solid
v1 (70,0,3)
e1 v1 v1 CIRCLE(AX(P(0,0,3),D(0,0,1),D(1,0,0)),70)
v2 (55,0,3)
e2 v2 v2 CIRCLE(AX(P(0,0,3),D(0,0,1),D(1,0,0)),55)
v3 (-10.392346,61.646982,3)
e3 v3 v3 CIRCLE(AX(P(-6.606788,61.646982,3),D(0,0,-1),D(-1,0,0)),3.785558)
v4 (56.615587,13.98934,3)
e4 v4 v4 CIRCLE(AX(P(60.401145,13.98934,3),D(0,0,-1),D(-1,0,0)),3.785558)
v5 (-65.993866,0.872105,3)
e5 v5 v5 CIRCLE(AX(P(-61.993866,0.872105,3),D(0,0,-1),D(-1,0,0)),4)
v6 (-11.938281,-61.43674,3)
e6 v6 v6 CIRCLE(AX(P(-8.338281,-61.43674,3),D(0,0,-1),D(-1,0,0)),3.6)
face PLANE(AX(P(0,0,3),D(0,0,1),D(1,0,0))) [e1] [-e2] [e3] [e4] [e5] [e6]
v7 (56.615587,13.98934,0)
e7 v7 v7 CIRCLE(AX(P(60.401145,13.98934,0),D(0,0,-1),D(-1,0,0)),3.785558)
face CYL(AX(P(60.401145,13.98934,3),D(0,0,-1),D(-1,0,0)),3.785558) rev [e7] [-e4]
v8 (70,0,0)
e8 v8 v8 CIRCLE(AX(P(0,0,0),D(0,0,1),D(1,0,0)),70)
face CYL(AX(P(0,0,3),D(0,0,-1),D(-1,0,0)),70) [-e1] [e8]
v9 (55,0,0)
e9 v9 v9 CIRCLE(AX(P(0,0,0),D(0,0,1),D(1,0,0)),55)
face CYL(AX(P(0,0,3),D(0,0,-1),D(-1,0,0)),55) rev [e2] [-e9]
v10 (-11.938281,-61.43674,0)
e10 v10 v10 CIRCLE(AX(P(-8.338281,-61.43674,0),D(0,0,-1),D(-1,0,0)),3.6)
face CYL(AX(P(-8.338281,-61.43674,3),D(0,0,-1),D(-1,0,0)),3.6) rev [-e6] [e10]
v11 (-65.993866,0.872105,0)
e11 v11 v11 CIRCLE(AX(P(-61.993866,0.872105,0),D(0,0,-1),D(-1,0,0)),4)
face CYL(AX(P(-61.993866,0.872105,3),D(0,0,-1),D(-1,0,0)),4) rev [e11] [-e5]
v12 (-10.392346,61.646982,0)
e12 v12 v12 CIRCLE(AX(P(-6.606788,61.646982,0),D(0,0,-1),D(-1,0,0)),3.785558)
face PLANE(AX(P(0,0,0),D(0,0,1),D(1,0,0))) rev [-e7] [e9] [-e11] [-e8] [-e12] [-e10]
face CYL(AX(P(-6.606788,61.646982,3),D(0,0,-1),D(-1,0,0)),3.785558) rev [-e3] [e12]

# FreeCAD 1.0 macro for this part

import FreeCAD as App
import Part
import Sketcher
from FreeCAD import Vector

doc = App.newDocument("Part")
body = doc.addObject("PartDesign::Body", "Body")

# Sketch on XY plane
sketch1 = body.newObject("Sketcher::SketchObject", "Sketch")
sketch1.AttachmentSupport = (doc.getObject("XY_Plane"), [""])
sketch1.MapMode = "FlatFace"
sketch1.addGeometry([
    Part.Circle(Vector(0, 0, 0), Vector(0, 0, 1), 70),
    Part.Circle(Vector(0, 0, 0), Vector(0, 0, 1), 55),
], False)
sketch1.addConstraint([
    Sketcher.Constraint("Coincident", 0, 3, -1, 1),
    Sketcher.Constraint("Coincident", 1, 3, -1, 1),
    Sketcher.Constraint("Diameter", 0, 140.0),
    Sketcher.Constraint("Diameter", 1, 110.0),
])
pad1 = body.newObject("PartDesign::Pad", "Pad")
pad1.Profile = sketch1
pad1.Length = 3

# Sketch on XY plane
sketch2 = body.newObject("Sketcher::SketchObject", "Sketch001")
sketch2.AttachmentSupport = (doc.getObject("XY_Plane"), [""])
sketch2.MapMode = "FlatFace"
sketch2.addGeometry([
    Part.Circle(Vector(-62, 0.9, 0), Vector(0, 0, 1), 4),
    Part.Circle(Vector(-6.6, 61.6, 0), Vector(0, 0, 1), 3.8),
    Part.Circle(Vector(60.4, 14, 0), Vector(0, 0, 1), 3.8),
    Part.Circle(Vector(-8.3, -61.4, 0), Vector(0, 0, 1), 3.6),
], False)
sketch2.addConstraint([
    Sketcher.Constraint("Equal", 1, 2),
    Sketcher.Constraint("Diameter", 0, 8.0),
    Sketcher.Constraint("Diameter", 3, 7.2),
    Sketcher.Constraint("Diameter", 1, 7.571116),
    Sketcher.Constraint("DistanceX", 1, 3, -1, 1, 6.606788),
    Sketcher.Constraint("DistanceY", -1, 1, 1, 3, 61.646982),
    Sketcher.Constraint("DistanceY", -1, 1, 2, 3, 13.98934),
    Sketcher.Constraint("DistanceX", 3, 3, -1, 1, 8.338281),
    Sketcher.Constraint("DistanceY", 3, 3, -1, 1, 61.43674),
    Sketcher.Constraint("DistanceX", 0, 3, 2, 3, 122.395012),
    Sketcher.Constraint("DistanceX", 0, 3, -1, 1, 61.993866),
    Sketcher.Constraint("DistanceY", -1, 1, 0, 3, 0.872105),
])
pocket1 = body.newObject("PartDesign::Pocket", "Pocket")
pocket1.Profile = sketch2
pocket1.Length = 3
pocket1.Reversed = True

doc.recompute()
